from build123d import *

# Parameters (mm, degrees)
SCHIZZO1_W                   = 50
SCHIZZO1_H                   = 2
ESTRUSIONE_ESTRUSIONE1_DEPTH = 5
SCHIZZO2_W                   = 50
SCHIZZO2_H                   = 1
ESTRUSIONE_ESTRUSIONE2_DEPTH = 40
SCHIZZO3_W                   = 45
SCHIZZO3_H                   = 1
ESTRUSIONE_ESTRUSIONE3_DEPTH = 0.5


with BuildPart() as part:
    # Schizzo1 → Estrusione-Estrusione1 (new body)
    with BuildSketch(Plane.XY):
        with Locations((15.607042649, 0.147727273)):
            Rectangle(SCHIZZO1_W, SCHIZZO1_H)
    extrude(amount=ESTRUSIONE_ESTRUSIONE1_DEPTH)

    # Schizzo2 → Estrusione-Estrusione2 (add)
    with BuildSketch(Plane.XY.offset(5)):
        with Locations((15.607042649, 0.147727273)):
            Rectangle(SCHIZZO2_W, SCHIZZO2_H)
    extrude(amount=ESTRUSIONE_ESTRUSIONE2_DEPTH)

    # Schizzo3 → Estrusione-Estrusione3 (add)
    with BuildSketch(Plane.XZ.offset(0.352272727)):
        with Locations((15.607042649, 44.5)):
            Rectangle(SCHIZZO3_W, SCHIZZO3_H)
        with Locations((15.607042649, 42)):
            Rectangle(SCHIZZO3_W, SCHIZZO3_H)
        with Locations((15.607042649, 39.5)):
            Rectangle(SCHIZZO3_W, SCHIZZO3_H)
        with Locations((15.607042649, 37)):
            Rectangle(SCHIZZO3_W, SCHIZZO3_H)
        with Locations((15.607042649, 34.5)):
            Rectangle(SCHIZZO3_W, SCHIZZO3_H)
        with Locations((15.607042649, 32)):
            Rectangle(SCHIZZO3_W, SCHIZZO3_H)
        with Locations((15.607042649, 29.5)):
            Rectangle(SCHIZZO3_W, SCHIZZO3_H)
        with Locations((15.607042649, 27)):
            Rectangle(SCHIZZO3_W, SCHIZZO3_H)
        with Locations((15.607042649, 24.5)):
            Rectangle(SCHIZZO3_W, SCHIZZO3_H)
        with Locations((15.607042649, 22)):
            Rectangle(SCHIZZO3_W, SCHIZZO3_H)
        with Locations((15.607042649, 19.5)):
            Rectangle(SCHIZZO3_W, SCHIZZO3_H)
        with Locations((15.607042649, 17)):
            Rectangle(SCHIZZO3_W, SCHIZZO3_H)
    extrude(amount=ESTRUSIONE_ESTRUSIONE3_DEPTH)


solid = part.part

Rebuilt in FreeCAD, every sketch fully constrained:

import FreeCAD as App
import Part
import Sketcher
from FreeCAD import Vector

doc = App.newDocument("Part")
body = doc.addObject("PartDesign::Body", "Body")

sketch1 = body.newObject("Sketcher::SketchObject", "Sketch")
sketch1.AttachmentSupport = (doc.getObject("XY_Plane"), [""])
sketch1.MapMode = "FlatFace"
sketch1.addGeometry([
    Part.LineSegment(Vector(-9.4, 1.1, 0), Vector(-9.4, -0.9, 0)),
    Part.LineSegment(Vector(-9.4, -0.9, 0), Vector(40.6, -0.9, 0)),
    Part.LineSegment(Vector(40.6, -0.9, 0), Vector(40.6, 1.1, 0)),
    Part.LineSegment(Vector(40.6, 1.1, 0), Vector(-9.4, 1.1, 0)),
], False)
sketch1.addConstraint([
    Sketcher.Constraint("Coincident", 0, 2, 1, 1),
    Sketcher.Constraint("Coincident", 1, 2, 2, 1),
    Sketcher.Constraint("Coincident", 2, 2, 3, 1),
    Sketcher.Constraint("Coincident", 3, 2, 0, 1),
    Sketcher.Constraint("Vertical", 0),
    Sketcher.Constraint("Horizontal", 1),
    Sketcher.Constraint("Vertical", 2),
    Sketcher.Constraint("Horizontal", 3),
    Sketcher.Constraint("DistanceX", 1, 1, 1, 2, 50.0),
    Sketcher.Constraint("DistanceY", 0, 2, 0, 1, 2.0),
    Sketcher.Constraint("DistanceX", 0, 2, -1, 1, 9.392957),
    Sketcher.Constraint("DistanceY", 0, 2, -1, 1, 0.852273),
])
pad1 = body.newObject("PartDesign::Pad", "Pad")
pad1.Profile = sketch1
pad1.Length = 5

sketch2 = body.newObject("Sketcher::SketchObject", "Sketch001")
sketch2.AttachmentSupport = (doc.getObject("XY_Plane"), [""])
sketch2.MapMode = "FlatFace"
sketch2.AttachmentOffset = App.Placement(Vector(0, 0, 5), App.Rotation())
sketch2.addGeometry([
    Part.LineSegment(Vector(-9.4, 0.6, 0), Vector(-9.4, -0.4, 0)),
    Part.LineSegment(Vector(-9.4, -0.4, 0), Vector(40.6, -0.4, 0)),
    Part.LineSegment(Vector(40.6, -0.4, 0), Vector(40.6, 0.6, 0)),
    Part.LineSegment(Vector(40.6, 0.6, 0), Vector(-9.4, 0.6, 0)),
], False)
sketch2.addConstraint([
    Sketcher.Constraint("Coincident", 0, 2, 1, 1),
    Sketcher.Constraint("Coincident", 1, 2, 2, 1),
    Sketcher.Constraint("Coincident", 2, 2, 3, 1),
    Sketcher.Constraint("Coincident", 3, 2, 0, 1),
    Sketcher.Constraint("Vertical", 0),
    Sketcher.Constraint("Horizontal", 1),
    Sketcher.Constraint("Vertical", 2),
    Sketcher.Constraint("Horizontal", 3),
    Sketcher.Constraint("DistanceX", 1, 1, 1, 2, 50.0),
    Sketcher.Constraint("DistanceY", 0, 2, 0, 1, 1.0),
    Sketcher.Constraint("DistanceX", 0, 2, -1, 1, 9.392957),
    Sketcher.Constraint("DistanceY", 0, 2, -1, 1, 0.352273),
])
pad2 = body.newObject("PartDesign::Pad", "Pad001")
pad2.Profile = sketch2
pad2.Length = 40

sketch3 = body.newObject("Sketcher::SketchObject", "Sketch002")
sketch3.AttachmentSupport = (doc.getObject("XZ_Plane"), [""])
sketch3.MapMode = "FlatFace"
sketch3.AttachmentOffset = App.Placement(Vector(0, 0, 0.352273), App.Rotation())
sketch3.addGeometry([
    Part.LineSegment(Vector(-6.9, 45, 0), Vector(-6.9, 44, 0)),
    Part.LineSegment(Vector(-6.9, 44, 0), Vector(38.1, 44, 0)),
    Part.LineSegment(Vector(38.1, 44, 0), Vector(38.1, 45, 0)),
    Part.LineSegment(Vector(38.1, 45, 0), Vector(-6.9, 45, 0)),
    Part.LineSegment(Vector(-6.9, 42.5, 0), Vector(-6.9, 41.5, 0)),
    Part.LineSegment(Vector(-6.9, 41.5, 0), Vector(38.1, 41.5, 0)),
    Part.LineSegment(Vector(38.1, 41.5, 0), Vector(38.1, 42.5, 0)),
    Part.LineSegment(Vector(38.1, 42.5, 0), Vector(-6.9, 42.5, 0)),
    Part.LineSegment(Vector(-6.9, 40, 0), Vector(-6.9, 39, 0)),
    Part.LineSegment(Vector(-6.9, 39, 0), Vector(38.1, 39, 0)),
    Part.LineSegment(Vector(38.1, 39, 0), Vector(38.1, 40, 0)),
    Part.LineSegment(Vector(38.1, 40, 0), Vector(-6.9, 40, 0)),
    Part.LineSegment(Vector(-6.9, 37.5, 0), Vector(-6.9, 36.5, 0)),
    Part.LineSegment(Vector(-6.9, 36.5, 0), Vector(38.1, 36.5, 0)),
    Part.LineSegment(Vector(38.1, 36.5, 0), Vector(38.1, 37.5, 0)),
    Part.LineSegment(Vector(38.1, 37.5, 0), Vector(-6.9, 37.5, 0)),
    Part.LineSegment(Vector(-6.9, 35, 0), Vector(-6.9, 34, 0)),
    Part.LineSegment(Vector(-6.9, 34, 0), Vector(38.1, 34, 0)),
    Part.LineSegment(Vector(38.1, 34, 0), Vector(38.1, 35, 0)),
    Part.LineSegment(Vector(38.1, 35, 0), Vector(-6.9, 35, 0)),
    Part.LineSegment(Vector(-6.9, 32.5, 0), Vector(-6.9, 31.5, 0)),
    Part.LineSegment(Vector(-6.9, 31.5, 0), Vector(38.1, 31.5, 0)),
    Part.LineSegment(Vector(38.1, 31.5, 0), Vector(38.1, 32.5, 0)),
    Part.LineSegment(Vector(38.1, 32.5, 0), Vector(-6.9, 32.5, 0)),
    Part.LineSegment(Vector(-6.9, 30, 0), Vector(-6.9, 29, 0)),
    Part.LineSegment(Vector(-6.9, 29, 0), Vector(38.1, 29, 0)),
    Part.LineSegment(Vector(38.1, 29, 0), Vector(38.1, 30, 0)),
    Part.LineSegment(Vector(38.1, 30, 0), Vector(-6.9, 30, 0)),
    Part.LineSegment(Vector(-6.9, 27.5, 0), Vector(-6.9, 26.5, 0)),
    Part.LineSegment(Vector(-6.9, 26.5, 0), Vector(38.1, 26.5, 0)),
    Part.LineSegment(Vector(38.1, 26.5, 0), Vector(38.1, 27.5, 0)),
    Part.LineSegment(Vector(38.1, 27.5, 0), Vector(-6.9, 27.5, 0)),
    Part.LineSegment(Vector(-6.9, 25, 0), Vector(-6.9, 24, 0)),
    Part.LineSegment(Vector(-6.9, 24, 0), Vector(38.1, 24, 0)),
    Part.LineSegment(Vector(38.1, 24, 0), Vector(38.1, 25, 0)),
    Part.LineSegment(Vector(38.1, 25, 0), Vector(-6.9, 25, 0)),
    Part.LineSegment(Vector(-6.9, 22.5, 0), Vector(-6.9, 21.5, 0)),
    Part.LineSegment(Vector(-6.9, 21.5, 0), Vector(38.1, 21.5, 0)),
    Part.LineSegment(Vector(38.1, 21.5, 0), Vector(38.1, 22.5, 0)),
    Part.LineSegment(Vector(38.1, 22.5, 0), Vector(-6.9, 22.5, 0)),
    Part.LineSegment(Vector(-6.9, 20, 0), Vector(-6.9, 19, 0)),
    Part.LineSegment(Vector(-6.9, 19, 0), Vector(38.1, 19, 0)),
    Part.LineSegment(Vector(38.1, 19, 0), Vector(38.1, 20, 0)),
    Part.LineSegment(Vector(38.1, 20, 0), Vector(-6.9, 20, 0)),
    Part.LineSegment(Vector(-6.9, 17.5, 0), Vector(-6.9, 16.5, 0)),
    Part.LineSegment(Vector(-6.9, 16.5, 0), Vector(38.1, 16.5, 0)),
    Part.LineSegment(Vector(38.1, 16.5, 0), Vector(38.1, 17.5, 0)),
    Part.LineSegment(Vector(38.1, 17.5, 0), Vector(-6.9, 17.5, 0)),
], False)
sketch3.addConstraint([
    Sketcher.Constraint("Coincident", 0, 2, 1, 1),
    Sketcher.Constraint("Coincident", 1, 2, 2, 1),
    Sketcher.Constraint("Coincident", 2, 2, 3, 1),
    Sketcher.Constraint("Coincident", 3, 2, 0, 1),
    Sketcher.Constraint("Coincident", 4, 2, 5, 1),
    Sketcher.Constraint("Coincident", 5, 2, 6, 1),
    Sketcher.Constraint("Coincident", 6, 2, 7, 1),
    Sketcher.Constraint("Coincident", 7, 2, 4, 1),
    Sketcher.Constraint("Coincident", 8, 2, 9, 1),
    Sketcher.Constraint("Coincident", 9, 2, 10, 1),
    Sketcher.Constraint("Coincident", 10, 2, 11, 1),
    Sketcher.Constraint("Coincident", 11, 2, 8, 1),
    Sketcher.Constraint("Coincident", 12, 2, 13, 1),
    Sketcher.Constraint("Coincident", 13, 2, 14, 1),
    Sketcher.Constraint("Coincident", 14, 2, 15, 1),
    Sketcher.Constraint("Coincident", 15, 2, 12, 1),
    Sketcher.Constraint("Coincident", 16, 2, 17, 1),
    Sketcher.Constraint("Coincident", 17, 2, 18, 1),
    Sketcher.Constraint("Coincident", 18, 2, 19, 1),
    Sketcher.Constraint("Coincident", 19, 2, 16, 1),
    Sketcher.Constraint("Coincident", 20, 2, 21, 1),
    Sketcher.Constraint("Coincident", 21, 2, 22, 1),
    Sketcher.Constraint("Coincident", 22, 2, 23, 1),
    Sketcher.Constraint("Coincident", 23, 2, 20, 1),
    Sketcher.Constraint("Coincident", 24, 2, 25, 1),
    Sketcher.Constraint("Coincident", 25, 2, 26, 1),
    Sketcher.Constraint("Coincident", 26, 2, 27, 1),
    Sketcher.Constraint("Coincident", 27, 2, 24, 1),
    Sketcher.Constraint("Coincident", 28, 2, 29, 1),
    Sketcher.Constraint("Coincident", 29, 2, 30, 1),
    Sketcher.Constraint("Coincident", 30, 2, 31, 1),
    Sketcher.Constraint("Coincident", 31, 2, 28, 1),
    Sketcher.Constraint("Coincident", 32, 2, 33, 1),
    Sketcher.Constraint("Coincident", 33, 2, 34, 1),
    Sketcher.Constraint("Coincident", 34, 2, 35, 1),
    Sketcher.Constraint("Coincident", 35, 2, 32, 1),
    Sketcher.Constraint("Coincident", 36, 2, 37, 1),
    Sketcher.Constraint("Coincident", 37, 2, 38, 1),
    Sketcher.Constraint("Coincident", 38, 2, 39, 1),
    Sketcher.Constraint("Coincident", 39, 2, 36, 1),
    Sketcher.Constraint("Coincident", 40, 2, 41, 1),
    Sketcher.Constraint("Coincident", 41, 2, 42, 1),
    Sketcher.Constraint("Coincident", 42, 2, 43, 1),
    Sketcher.Constraint("Coincident", 43, 2, 40, 1),
    Sketcher.Constraint("Coincident", 44, 2, 45, 1),
    Sketcher.Constraint("Coincident", 45, 2, 46, 1),
    Sketcher.Constraint("Coincident", 46, 2, 47, 1),
    Sketcher.Constraint("Coincident", 47, 2, 44, 1),
    Sketcher.Constraint("Vertical", 0),
    Sketcher.Constraint("Horizontal", 1),
    Sketcher.Constraint("Vertical", 2),
    Sketcher.Constraint("Horizontal", 3),
    Sketcher.Constraint("Vertical", 4),
    Sketcher.Constraint("Horizontal", 5),
    Sketcher.Constraint("Vertical", 6),
    Sketcher.Constraint("Horizontal", 7),
    Sketcher.Constraint("Vertical", 8),
    Sketcher.Constraint("Horizontal", 9),
    Sketcher.Constraint("Vertical", 10),
    Sketcher.Constraint("Horizontal", 11),
    Sketcher.Constraint("Vertical", 12),
    Sketcher.Constraint("Horizontal", 13),
    Sketcher.Constraint("Vertical", 14),
    Sketcher.Constraint("Horizontal", 15),
    Sketcher.Constraint("Vertical", 16),
    Sketcher.Constraint("Horizontal", 17),
    Sketcher.Constraint("Vertical", 18),
    Sketcher.Constraint("Horizontal", 19),
    Sketcher.Constraint("Vertical", 20),
    Sketcher.Constraint("Horizontal", 21),
    Sketcher.Constraint("Vertical", 22),
    Sketcher.Constraint("Horizontal", 23),
    Sketcher.Constraint("Vertical", 24),
    Sketcher.Constraint("Horizontal", 25),
    Sketcher.Constraint("Vertical", 26),
    Sketcher.Constraint("Horizontal", 27),
    Sketcher.Constraint("Vertical", 28),
    Sketcher.Constraint("Horizontal", 29),
    Sketcher.Constraint("Vertical", 30),
    Sketcher.Constraint("Horizontal", 31),
    Sketcher.Constraint("Vertical", 32),
    Sketcher.Constraint("Horizontal", 33),
    Sketcher.Constraint("Vertical", 34),
    Sketcher.Constraint("Horizontal", 35),
    Sketcher.Constraint("Vertical", 36),
    Sketcher.Constraint("Horizontal", 37),
    Sketcher.Constraint("Vertical", 38),
    Sketcher.Constraint("Horizontal", 39),
    Sketcher.Constraint("Vertical", 40),
    Sketcher.Constraint("Horizontal", 41),
    Sketcher.Constraint("Vertical", 42),
    Sketcher.Constraint("Horizontal", 43),
    Sketcher.Constraint("Vertical", 44),
    Sketcher.Constraint("Horizontal", 45),
    Sketcher.Constraint("Vertical", 46),
    Sketcher.Constraint("Horizontal", 47),
    Sketcher.Constraint("Vertical", 3, 2, 4, 2),
    Sketcher.Constraint("Vertical", 2, 2, 5, 2),
    Sketcher.Constraint("Vertical", 7, 2, 8, 2),
    Sketcher.Constraint("Vertical", 6, 2, 9, 2),
    Sketcher.Constraint("Vertical", 11, 2, 12, 2),
    Sketcher.Constraint("Vertical", 10, 2, 13, 2),
    Sketcher.Constraint("Vertical", 15, 2, 16, 2),
    Sketcher.Constraint("Vertical", 14, 2, 17, 2),
    Sketcher.Constraint("Vertical", 19, 2, 20, 2),
    Sketcher.Constraint("Vertical", 18, 2, 21, 2),
    Sketcher.Constraint("Vertical", 23, 2, 24, 2),
    Sketcher.Constraint("Vertical", 22, 2, 25, 2),
    Sketcher.Constraint("Vertical", 27, 2, 28, 2),
    Sketcher.Constraint("Vertical", 26, 2, 29, 2),
    Sketcher.Constraint("Vertical", 31, 2, 32, 2),
    Sketcher.Constraint("Vertical", 30, 2, 33, 2),
    Sketcher.Constraint("Vertical", 35, 2, 36, 2),
    Sketcher.Constraint("Vertical", 34, 2, 37, 2),
    Sketcher.Constraint("Vertical", 39, 2, 40, 2),
    Sketcher.Constraint("Vertical", 38, 2, 41, 2),
    Sketcher.Constraint("Vertical", 43, 2, 44, 2),
    Sketcher.Constraint("Vertical", 42, 2, 45, 2),
    Sketcher.Constraint("Equal", 2, 4),
    Sketcher.Constraint("Equal", 6, 8),
    Sketcher.Constraint("Equal", 10, 12),
    Sketcher.Constraint("Equal", 14, 16),
    Sketcher.Constraint("Equal", 18, 20),
    Sketcher.Constraint("Equal", 22, 24),
    Sketcher.Constraint("Equal", 26, 28),
    Sketcher.Constraint("Equal", 30, 32),
    Sketcher.Constraint("Equal", 34, 36),
    Sketcher.Constraint("Equal", 38, 40),
    Sketcher.Constraint("Equal", 42, 44),
    Sketcher.Constraint("DistanceX", 1, 1, 1, 2, 45.0),
    Sketcher.Constraint("DistanceY", 0, 2, 0, 1, 1.0),
    Sketcher.Constraint("DistanceY", -1, 1, 0, 2, 44.0),
    Sketcher.Constraint("DistanceY", -1, 1, 8, 2, 39.0),
    Sketcher.Constraint("DistanceY", -1, 1, 16, 2, 34.0),
    Sketcher.Constraint("DistanceY", -1, 1, 24, 2, 29.0),
    Sketcher.Constraint("DistanceY", -1, 1, 32, 2, 24.0),
    Sketcher.Constraint("DistanceY", -1, 1, 40, 2, 19.0),
    Sketcher.Constraint("DistanceY", 12, 2, 4, 2, 5.0),
    Sketcher.Constraint("DistanceY", 20, 2, 12, 2, 5.0),
    Sketcher.Constraint("DistanceY", 28, 2, 20, 2, 5.0),
    Sketcher.Constraint("DistanceY", 36, 2, 28, 2, 5.0),
    Sketcher.Constraint("DistanceY", 44, 2, 36, 2, 5.0),
    Sketcher.Constraint("DistanceY", -1, 1, 4, 2, 41.5),
    Sketcher.Constraint("DistanceX", 0, 2, -1, 1, 6.892957),
])
pad3 = body.newObject("PartDesign::Pad", "Pad002")
pad3.Profile = sketch3
pad3.Length = 0.5

doc.recompute()
